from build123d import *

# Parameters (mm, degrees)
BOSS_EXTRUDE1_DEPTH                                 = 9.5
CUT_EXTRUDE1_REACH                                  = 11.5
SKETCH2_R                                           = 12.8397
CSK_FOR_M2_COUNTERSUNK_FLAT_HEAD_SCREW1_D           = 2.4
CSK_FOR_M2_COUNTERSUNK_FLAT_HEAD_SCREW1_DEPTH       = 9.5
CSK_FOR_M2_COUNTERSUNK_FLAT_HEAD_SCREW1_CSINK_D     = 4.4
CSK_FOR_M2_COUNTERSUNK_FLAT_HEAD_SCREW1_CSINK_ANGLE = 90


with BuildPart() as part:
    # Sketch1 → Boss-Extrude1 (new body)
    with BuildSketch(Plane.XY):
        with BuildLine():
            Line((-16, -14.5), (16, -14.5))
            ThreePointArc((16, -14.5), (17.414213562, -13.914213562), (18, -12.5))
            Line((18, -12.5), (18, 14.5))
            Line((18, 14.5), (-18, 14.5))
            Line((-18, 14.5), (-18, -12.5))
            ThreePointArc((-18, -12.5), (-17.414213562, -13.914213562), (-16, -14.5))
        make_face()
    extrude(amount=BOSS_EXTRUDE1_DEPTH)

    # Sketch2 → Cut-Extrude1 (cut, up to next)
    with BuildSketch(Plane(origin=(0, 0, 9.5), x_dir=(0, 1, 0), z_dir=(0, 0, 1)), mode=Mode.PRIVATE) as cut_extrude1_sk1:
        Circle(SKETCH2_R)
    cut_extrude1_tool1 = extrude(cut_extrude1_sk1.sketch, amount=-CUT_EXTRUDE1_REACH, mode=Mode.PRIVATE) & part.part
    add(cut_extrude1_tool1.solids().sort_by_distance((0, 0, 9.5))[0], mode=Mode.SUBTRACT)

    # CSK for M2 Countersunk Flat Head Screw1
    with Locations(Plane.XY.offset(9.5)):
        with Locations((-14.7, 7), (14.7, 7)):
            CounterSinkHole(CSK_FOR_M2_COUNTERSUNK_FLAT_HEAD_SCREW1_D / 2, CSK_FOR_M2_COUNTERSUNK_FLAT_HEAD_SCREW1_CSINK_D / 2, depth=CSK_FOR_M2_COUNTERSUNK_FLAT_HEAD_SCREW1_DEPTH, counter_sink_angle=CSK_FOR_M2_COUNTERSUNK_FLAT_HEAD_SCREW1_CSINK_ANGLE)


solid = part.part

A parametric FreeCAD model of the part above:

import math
import FreeCAD as App
import Part
import Sketcher
Q = App.Units.Quantity

doc = App.newDocument("Part")
body = doc.addObject("PartDesign::Body", "Body")

# Sketch on XY plane
sketch1 = doc.addObject("Sketcher::SketchObject", "Sketch")
body.addObject(sketch1)
sketch1.AttachmentSupport = (doc.XY_Plane, [""])
sketch1.MapMode = "FlatFace"
sketch1.addGeometry(Part.LineSegment(App.Vector(-16, -14.5, 0), App.Vector(16, -14.5, 0)), False)
sketch1.addGeometry(Part.ArcOfCircle(Part.Circle(App.Vector(16, -12.5, 0), App.Vector(0, 0, 1), 2), math.radians(-90), math.radians(0)), False)
sketch1.addGeometry(Part.LineSegment(App.Vector(18, -12.5, 0), App.Vector(18, 14.5, 0)), False)
sketch1.addGeometry(Part.LineSegment(App.Vector(18, 14.5, 0), App.Vector(-18, 14.5, 0)), False)
sketch1.addGeometry(Part.LineSegment(App.Vector(-18, 14.5, 0), App.Vector(-18, -12.5, 0)), False)
sketch1.addGeometry(Part.ArcOfCircle(Part.Circle(App.Vector(-16, -12.5, 0), App.Vector(0, 0, 1), 2), math.radians(-180), math.radians(-90)), False)
sketch1.addConstraint(Sketcher.Constraint("Tangent", 0, 2, 1, 1))
sketch1.addConstraint(Sketcher.Constraint("Tangent", 1, 2, 2, 1))
sketch1.addConstraint(Sketcher.Constraint("Coincident", 2, 2, 3, 1))
sketch1.addConstraint(Sketcher.Constraint("Coincident", 3, 2, 4, 1))
sketch1.addConstraint(Sketcher.Constraint("Tangent", 4, 2, 5, 1))
sketch1.addConstraint(Sketcher.Constraint("Tangent", 5, 2, 0, 1))
sketch1.addConstraint(Sketcher.Constraint("Horizontal", 0))
sketch1.addConstraint(Sketcher.Constraint("Vertical", 2))
sketch1.addConstraint(Sketcher.Constraint("Horizontal", 3))
sketch1.addConstraint(Sketcher.Constraint("Vertical", 4))
sketch1.addConstraint(Sketcher.Constraint("Equal", 1, 5))
sketch1.addConstraint(Sketcher.Constraint("Radius", 1, Q("2 mm")))
sketch1.addConstraint(Sketcher.Constraint("DistanceX", 0, 1, 0, 2, Q("32 mm")))
sketch1.addConstraint(Sketcher.Constraint("DistanceY", 2, 1, 2, 2, Q("27 mm")))
sketch1.addConstraint(Sketcher.Constraint("DistanceX", -1, 1, 1, 3, Q("16 mm")))
sketch1.addConstraint(Sketcher.Constraint("DistanceY", 1, 3, -1, 1, Q("12.5 mm")))
pad1 = doc.addObject("PartDesign::Pad", "Pad")
body.addObject(pad1)
pad1.Profile = sketch1
pad1.Length = 9.5

# Sketch on XY plane
sketch2 = doc.addObject("Sketcher::SketchObject", "Sketch001")
body.addObject(sketch2)
sketch2.AttachmentSupport = (doc.XY_Plane, [""])
sketch2.MapMode = "FlatFace"
sketch2.AttachmentOffset = App.Placement(App.Vector(0, 0, 9.5), App.Rotation())
sketch2.addGeometry(Part.Circle(App.Vector(0, 0, 0), App.Vector(0, 0, 1), 12.8397), False)
sketch2.addConstraint(Sketcher.Constraint("Coincident", 0, 3, -1, 1))
sketch2.addConstraint(Sketcher.Constraint("Diameter", 0, Q("25.6794 mm")))
pocket1 = doc.addObject("PartDesign::Pocket", "Pocket")
body.addObject(pocket1)
pocket1.Profile = sketch2
pocket1.Type = "UpToFirst"

# Sketch on XY plane
sketch3 = doc.addObject("Sketcher::SketchObject", "Sketch002")
body.addObject(sketch3)
sketch3.AttachmentSupport = (doc.XY_Plane, [""])
sketch3.MapMode = "FlatFace"
sketch3.AttachmentOffset = App.Placement(App.Vector(0, 0, 9.5), App.Rotation())
sketch3.addGeometry(Part.Circle(App.Vector(-14.7, 7, 0), App.Vector(0, 0, 1), 1.2), False)
sketch3.addGeometry(Part.Circle(App.Vector(14.7, 7, 0), App.Vector(0, 0, 1), 1.2), False)
sketch3.addConstraint(Sketcher.Constraint("Equal", 0, 1))
sketch3.addConstraint(Sketcher.Constraint("Symmetric", 0, 3, 1, 3, -2))
sketch3.addConstraint(Sketcher.Constraint("Diameter", 0, Q("2.4 mm")))
sketch3.addConstraint(Sketcher.Constraint("DistanceY", -1, 1, 0, 3, Q("7 mm")))
sketch3.addConstraint(Sketcher.Constraint("DistanceX", 0, 3, -1, 1, Q("14.7 mm")))
doc.recompute()
hole = doc.addObject("PartDesign::Hole", "Hole")
body.addObject(hole)
hole.Profile = sketch3
hole.ThreadType = "None"
hole.Diameter = 2.4
hole.DepthType = "Dimension"
hole.Depth = 9.5
hole.DrillPoint = "Flat"
hole.HoleCutType = "Countersink"
hole.HoleCutDiameter = 4.4
hole.HoleCutCountersinkAngle = 90

doc.recompute()
